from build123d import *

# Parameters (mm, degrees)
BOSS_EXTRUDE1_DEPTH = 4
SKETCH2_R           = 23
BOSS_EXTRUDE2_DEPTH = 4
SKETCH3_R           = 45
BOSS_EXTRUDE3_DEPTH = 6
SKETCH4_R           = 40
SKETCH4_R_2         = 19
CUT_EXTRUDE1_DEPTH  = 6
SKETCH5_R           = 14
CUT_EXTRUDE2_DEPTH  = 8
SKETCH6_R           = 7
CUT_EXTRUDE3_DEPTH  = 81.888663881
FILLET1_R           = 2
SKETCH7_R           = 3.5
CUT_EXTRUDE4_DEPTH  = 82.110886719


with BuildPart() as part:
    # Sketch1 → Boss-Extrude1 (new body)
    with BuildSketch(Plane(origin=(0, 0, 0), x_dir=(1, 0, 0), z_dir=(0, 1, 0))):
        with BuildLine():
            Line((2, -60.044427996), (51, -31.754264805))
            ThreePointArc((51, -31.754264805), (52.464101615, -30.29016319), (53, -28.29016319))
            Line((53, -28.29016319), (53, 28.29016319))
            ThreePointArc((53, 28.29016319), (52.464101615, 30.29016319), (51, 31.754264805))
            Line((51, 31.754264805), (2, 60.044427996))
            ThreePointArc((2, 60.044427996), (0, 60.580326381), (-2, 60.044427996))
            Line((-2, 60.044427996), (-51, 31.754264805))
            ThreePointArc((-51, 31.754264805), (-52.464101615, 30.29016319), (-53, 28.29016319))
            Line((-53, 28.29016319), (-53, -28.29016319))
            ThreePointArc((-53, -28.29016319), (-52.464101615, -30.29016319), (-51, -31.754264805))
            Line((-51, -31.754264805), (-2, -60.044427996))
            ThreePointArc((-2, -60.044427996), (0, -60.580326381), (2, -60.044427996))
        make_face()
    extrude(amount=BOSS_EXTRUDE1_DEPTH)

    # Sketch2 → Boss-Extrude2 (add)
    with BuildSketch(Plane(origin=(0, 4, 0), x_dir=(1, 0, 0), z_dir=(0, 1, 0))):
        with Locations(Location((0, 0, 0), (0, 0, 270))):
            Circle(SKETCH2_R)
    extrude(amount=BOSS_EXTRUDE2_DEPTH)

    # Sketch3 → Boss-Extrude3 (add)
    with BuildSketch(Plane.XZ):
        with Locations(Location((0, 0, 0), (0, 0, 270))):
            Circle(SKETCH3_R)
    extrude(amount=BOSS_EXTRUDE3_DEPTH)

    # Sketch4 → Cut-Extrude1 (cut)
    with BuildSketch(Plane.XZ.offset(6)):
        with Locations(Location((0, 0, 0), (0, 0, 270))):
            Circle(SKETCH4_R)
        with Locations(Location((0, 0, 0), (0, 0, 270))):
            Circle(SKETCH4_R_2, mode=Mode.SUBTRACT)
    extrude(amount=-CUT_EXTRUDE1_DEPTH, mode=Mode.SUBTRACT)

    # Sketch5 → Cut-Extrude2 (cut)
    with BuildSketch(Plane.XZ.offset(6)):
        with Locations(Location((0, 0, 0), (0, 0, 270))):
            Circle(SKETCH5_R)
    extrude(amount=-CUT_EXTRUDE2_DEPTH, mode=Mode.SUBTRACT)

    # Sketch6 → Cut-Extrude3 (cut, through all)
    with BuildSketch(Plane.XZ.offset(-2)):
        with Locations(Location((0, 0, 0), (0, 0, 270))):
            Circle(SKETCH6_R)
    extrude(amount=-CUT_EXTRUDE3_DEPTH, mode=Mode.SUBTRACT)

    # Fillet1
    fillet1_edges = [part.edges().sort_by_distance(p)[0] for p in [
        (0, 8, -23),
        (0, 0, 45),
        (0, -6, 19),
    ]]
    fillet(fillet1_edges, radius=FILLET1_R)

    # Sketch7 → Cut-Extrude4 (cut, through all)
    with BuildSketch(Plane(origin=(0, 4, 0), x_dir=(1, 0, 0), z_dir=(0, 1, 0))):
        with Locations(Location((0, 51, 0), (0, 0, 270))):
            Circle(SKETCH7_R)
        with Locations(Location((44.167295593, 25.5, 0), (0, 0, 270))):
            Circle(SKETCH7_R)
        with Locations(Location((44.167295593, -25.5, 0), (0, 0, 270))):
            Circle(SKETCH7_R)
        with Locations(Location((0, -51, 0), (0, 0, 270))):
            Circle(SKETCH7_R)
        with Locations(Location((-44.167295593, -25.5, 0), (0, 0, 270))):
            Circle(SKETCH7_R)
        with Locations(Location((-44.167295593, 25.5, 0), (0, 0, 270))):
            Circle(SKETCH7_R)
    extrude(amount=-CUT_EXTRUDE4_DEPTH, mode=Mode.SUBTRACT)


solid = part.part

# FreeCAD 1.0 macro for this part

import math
import FreeCAD as App
import Part
import Sketcher
Q = App.Units.Quantity


def edges_at(feature, points):
    """Names of the edges that pass closest to the given points."""
    edges = feature.Shape.Edges
    near = lambda p: min(range(len(edges)), key=lambda i: edges[i].distToShape(Part.Vertex(*p))[0])
    return sorted({f"Edge{near(p) + 1}" for p in points})

doc = App.newDocument("Part")
body = doc.addObject("PartDesign::Body", "Body")

sketch1 = body.newObject("Sketcher::SketchObject", "Sketch")
sketch1.AttachmentSupport = (doc.getObject("XZ_Plane"), [""])
sketch1.MapMode = "FlatFace"
sketch1.addGeometry(Part.LineSegment(App.Vector(2, 60, 0), App.Vector(51, 31.8, 0)), False)
sketch1.addGeometry(Part.ArcOfCircle(Part.Circle(App.Vector(49, 28.3, 0), App.Vector(0, 0, 1), 4), math.radians(0), math.radians(60)), False)
sketch1.addGeometry(Part.LineSegment(App.Vector(53, 28.3, 0), App.Vector(53, -28.3, 0)), False)
sketch1.addGeometry(Part.ArcOfCircle(Part.Circle(App.Vector(49, -28.3, 0), App.Vector(0, 0, 1), 4), math.radians(-60), math.radians(0)), False)
sketch1.addGeometry(Part.LineSegment(App.Vector(51, -31.8, 0), App.Vector(2, -60, 0)), False)
sketch1.addGeometry(Part.ArcOfCircle(Part.Circle(App.Vector(0, -56.6, 0), App.Vector(0, 0, 1), 4), math.radians(-120), math.radians(-60)), False)
sketch1.addGeometry(Part.LineSegment(App.Vector(-2, -60, 0), App.Vector(-51, -31.8, 0)), False)
sketch1.addGeometry(Part.ArcOfCircle(Part.Circle(App.Vector(-49, -28.3, 0), App.Vector(0, 0, 1), 4), math.radians(180), math.radians(240)), False)
sketch1.addGeometry(Part.LineSegment(App.Vector(-53, -28.3, 0), App.Vector(-53, 28.3, 0)), False)
sketch1.addGeometry(Part.ArcOfCircle(Part.Circle(App.Vector(-49, 28.3, 0), App.Vector(0, 0, 1), 4), math.radians(120), math.radians(180)), False)
sketch1.addGeometry(Part.LineSegment(App.Vector(-51, 31.8, 0), App.Vector(-2, 60, 0)), False)
sketch1.addGeometry(Part.ArcOfCircle(Part.Circle(App.Vector(0, 56.6, 0), App.Vector(0, 0, 1), 4), math.radians(60), math.radians(120)), False)
sketch1.addConstraint(Sketcher.Constraint("Tangent", 0, 2, 1, 2))
sketch1.addConstraint(Sketcher.Constraint("Tangent", 1, 1, 2, 1))
sketch1.addConstraint(Sketcher.Constraint("Tangent", 2, 2, 3, 2))
sketch1.addConstraint(Sketcher.Constraint("Tangent", 3, 1, 4, 1))
sketch1.addConstraint(Sketcher.Constraint("Tangent", 4, 2, 5, 2))
sketch1.addConstraint(Sketcher.Constraint("Tangent", 5, 1, 6, 1))
sketch1.addConstraint(Sketcher.Constraint("Tangent", 6, 2, 7, 2))
sketch1.addConstraint(Sketcher.Constraint("Tangent", 7, 1, 8, 1))
sketch1.addConstraint(Sketcher.Constraint("Tangent", 8, 2, 9, 2))
sketch1.addConstraint(Sketcher.Constraint("Tangent", 9, 1, 10, 1))
sketch1.addConstraint(Sketcher.Constraint("Tangent", 10, 2, 11, 2))
sketch1.addConstraint(Sketcher.Constraint("Tangent", 11, 1, 0, 1))
sketch1.addConstraint(Sketcher.Constraint("Vertical", 2))
sketch1.addConstraint(Sketcher.Constraint("Vertical", 8))
sketch1.addConstraint(Sketcher.Constraint("Equal", 1, 3))
sketch1.addConstraint(Sketcher.Constraint("Equal", 3, 5))
sketch1.addConstraint(Sketcher.Constraint("Equal", 5, 7))
sketch1.addConstraint(Sketcher.Constraint("Equal", 7, 9))
sketch1.addConstraint(Sketcher.Constraint("Equal", 9, 11))
sketch1.addConstraint(Sketcher.Constraint("Symmetric", 1, 3, 7, 3, -1, 1))
sketch1.addConstraint(Sketcher.Constraint("Symmetric", 5, 3, 11, 3, -1, 1))
sketch1.addConstraint(Sketcher.Constraint("Symmetric", 4, 2, 5, 1, -2))
sketch1.addConstraint(Sketcher.Constraint("Parallel", 4, 10))
sketch1.addConstraint(Sketcher.Constraint("Radius", 1, Q("4 mm")))
sketch1.addConstraint(Sketcher.Constraint("Angle", 0, Q("-30 deg")))
sketch1.addConstraint(Sketcher.Constraint("DistanceX", -1, 1, 1, 3, Q("49 mm")))
sketch1.addConstraint(Sketcher.Constraint("DistanceY", 2, 2, 2, 1, Q("56.580326 mm")))
pad1 = body.newObject("PartDesign::Pad", "Pad")
pad1.Profile = sketch1
pad1.Length = 4
pad1.Reversed = True

sketch2 = body.newObject("Sketcher::SketchObject", "Sketch001")
sketch2.AttachmentSupport = (doc.getObject("XZ_Plane"), [""])
sketch2.MapMode = "FlatFace"
sketch2.AttachmentOffset = App.Placement(App.Vector(0, 0, -4), App.Rotation())
sketch2.addGeometry(Part.Circle(App.Vector(0, 0, 0), App.Vector(0, 0, 1), 23), False)
sketch2.addConstraint(Sketcher.Constraint("Coincident", 0, 3, -1, 1))
sketch2.addConstraint(Sketcher.Constraint("Diameter", 0, Q("46 mm")))
pad2 = body.newObject("PartDesign::Pad", "Pad001")
pad2.Profile = sketch2
pad2.Length = 4
pad2.Reversed = True

sketch3 = body.newObject("Sketcher::SketchObject", "Sketch002")
sketch3.AttachmentSupport = (doc.getObject("XZ_Plane"), [""])
sketch3.MapMode = "FlatFace"
sketch3.addGeometry(Part.Circle(App.Vector(0, 0, 0), App.Vector(0, 0, 1), 45), False)
sketch3.addConstraint(Sketcher.Constraint("Coincident", 0, 3, -1, 1))
sketch3.addConstraint(Sketcher.Constraint("Diameter", 0, Q("90 mm")))
pad3 = body.newObject("PartDesign::Pad", "Pad002")
pad3.Profile = sketch3
pad3.Length = 6

sketch4 = body.newObject("Sketcher::SketchObject", "Sketch003")
sketch4.AttachmentSupport = (doc.getObject("XZ_Plane"), [""])
sketch4.MapMode = "FlatFace"
sketch4.AttachmentOffset = App.Placement(App.Vector(0, 0, 6), App.Rotation())
sketch4.addGeometry(Part.Circle(App.Vector(0, 0, 0), App.Vector(0, 0, 1), 40), False)
sketch4.addGeometry(Part.Circle(App.Vector(0, 0, 0), App.Vector(0, 0, 1), 19), False)
sketch4.addConstraint(Sketcher.Constraint("Coincident", 0, 3, -1, 1))
sketch4.addConstraint(Sketcher.Constraint("Coincident", 1, 3, -1, 1))
sketch4.addConstraint(Sketcher.Constraint("Diameter", 0, Q("80 mm")))
sketch4.addConstraint(Sketcher.Constraint("Diameter", 1, Q("38 mm")))
pocket1 = body.newObject("PartDesign::Pocket", "Pocket")
pocket1.Profile = sketch4
pocket1.Length = 6

sketch5 = body.newObject("Sketcher::SketchObject", "Sketch004")
sketch5.AttachmentSupport = (doc.getObject("XZ_Plane"), [""])
sketch5.MapMode = "FlatFace"
sketch5.AttachmentOffset = App.Placement(App.Vector(0, 0, 6), App.Rotation())
sketch5.addGeometry(Part.Circle(App.Vector(0, 0, 0), App.Vector(0, 0, 1), 14), False)
sketch5.addConstraint(Sketcher.Constraint("Coincident", 0, 3, -1, 1))
sketch5.addConstraint(Sketcher.Constraint("Diameter", 0, Q("28 mm")))
pocket2 = body.newObject("PartDesign::Pocket", "Pocket001")
pocket2.Profile = sketch5
pocket2.Length = 8

sketch6 = body.newObject("Sketcher::SketchObject", "Sketch005")
sketch6.AttachmentSupport = (doc.getObject("XZ_Plane"), [""])
sketch6.MapMode = "FlatFace"
sketch6.AttachmentOffset = App.Placement(App.Vector(0, 0, -2), App.Rotation())
sketch6.addGeometry(Part.Circle(App.Vector(0, 0, 0), App.Vector(0, 0, 1), 7), False)
sketch6.addConstraint(Sketcher.Constraint("Coincident", 0, 3, -1, 1))
sketch6.addConstraint(Sketcher.Constraint("Diameter", 0, Q("14 mm")))
pocket3 = body.newObject("PartDesign::Pocket", "Pocket002")
pocket3.Profile = sketch6
pocket3.Type = "ThroughAll"
doc.recompute()

fillet = body.newObject("PartDesign::Fillet", "Fillet")
fillet.Base = (pocket3, edges_at(pocket3, [(0, 8, -23), (0, 0, 45), (0, -6, 19)]))
fillet.Radius = 2

sketch7 = body.newObject("Sketcher::SketchObject", "Sketch006")
sketch7.AttachmentSupport = (doc.getObject("XZ_Plane"), [""])
sketch7.MapMode = "FlatFace"
sketch7.AttachmentOffset = App.Placement(App.Vector(0, 0, -4), App.Rotation())
sketch7.addGeometry(Part.Circle(App.Vector(0, -51, 0), App.Vector(0, 0, 1), 3.5), False)
sketch7.addGeometry(Part.Circle(App.Vector(44.2, -25.5, 0), App.Vector(0, 0, 1), 3.5), False)
sketch7.addGeometry(Part.Circle(App.Vector(44.2, 25.5, 0), App.Vector(0, 0, 1), 3.5), False)
sketch7.addGeometry(Part.Circle(App.Vector(0, 51, 0), App.Vector(0, 0, 1), 3.5), False)
sketch7.addGeometry(Part.Circle(App.Vector(-44.2, 25.5, 0), App.Vector(0, 0, 1), 3.5), False)
sketch7.addGeometry(Part.Circle(App.Vector(-44.2, -25.5, 0), App.Vector(0, 0, 1), 3.5), False)
sketch7.addConstraint(Sketcher.Constraint("Equal", 0, 1))
sketch7.addConstraint(Sketcher.Constraint("Equal", 1, 2))
sketch7.addConstraint(Sketcher.Constraint("Equal", 2, 3))
sketch7.addConstraint(Sketcher.Constraint("Equal", 3, 4))
sketch7.addConstraint(Sketcher.Constraint("Equal", 4, 5))
sketch7.addConstraint(Sketcher.Constraint("Symmetric", 0, 3, 3, 3, -1, 1))
sketch7.addConstraint(Sketcher.Constraint("Symmetric", 1, 3, 4, 3, -1, 1))
sketch7.addConstraint(Sketcher.Constraint("Symmetric", 2, 3, 5, 3, -1, 1))
sketch7.addConstraint(Sketcher.Constraint("Symmetric", 2, 3, 4, 3, -2))
sketch7.addConstraint(Sketcher.Constraint("PointOnObject", 0, 3, -2))
sketch7.addConstraint(Sketcher.Constraint("Diameter", 0, Q("7 mm")))
sketch7.addConstraint(Sketcher.Constraint("DistanceY", 0, 3, -1, 1, Q("51 mm")))
sketch7.addConstraint(Sketcher.Constraint("DistanceY", 1, 3, 2, 3, Q("51 mm")))
sketch7.addConstraint(Sketcher.Constraint("DistanceX", 4, 3, 2, 3, Q("88.334591 mm")))
pocket4 = body.newObject("PartDesign::Pocket", "Pocket003")
pocket4.Profile = sketch7
pocket4.Type = "ThroughAll"
pocket4.Reversed = True

doc.recompute()
